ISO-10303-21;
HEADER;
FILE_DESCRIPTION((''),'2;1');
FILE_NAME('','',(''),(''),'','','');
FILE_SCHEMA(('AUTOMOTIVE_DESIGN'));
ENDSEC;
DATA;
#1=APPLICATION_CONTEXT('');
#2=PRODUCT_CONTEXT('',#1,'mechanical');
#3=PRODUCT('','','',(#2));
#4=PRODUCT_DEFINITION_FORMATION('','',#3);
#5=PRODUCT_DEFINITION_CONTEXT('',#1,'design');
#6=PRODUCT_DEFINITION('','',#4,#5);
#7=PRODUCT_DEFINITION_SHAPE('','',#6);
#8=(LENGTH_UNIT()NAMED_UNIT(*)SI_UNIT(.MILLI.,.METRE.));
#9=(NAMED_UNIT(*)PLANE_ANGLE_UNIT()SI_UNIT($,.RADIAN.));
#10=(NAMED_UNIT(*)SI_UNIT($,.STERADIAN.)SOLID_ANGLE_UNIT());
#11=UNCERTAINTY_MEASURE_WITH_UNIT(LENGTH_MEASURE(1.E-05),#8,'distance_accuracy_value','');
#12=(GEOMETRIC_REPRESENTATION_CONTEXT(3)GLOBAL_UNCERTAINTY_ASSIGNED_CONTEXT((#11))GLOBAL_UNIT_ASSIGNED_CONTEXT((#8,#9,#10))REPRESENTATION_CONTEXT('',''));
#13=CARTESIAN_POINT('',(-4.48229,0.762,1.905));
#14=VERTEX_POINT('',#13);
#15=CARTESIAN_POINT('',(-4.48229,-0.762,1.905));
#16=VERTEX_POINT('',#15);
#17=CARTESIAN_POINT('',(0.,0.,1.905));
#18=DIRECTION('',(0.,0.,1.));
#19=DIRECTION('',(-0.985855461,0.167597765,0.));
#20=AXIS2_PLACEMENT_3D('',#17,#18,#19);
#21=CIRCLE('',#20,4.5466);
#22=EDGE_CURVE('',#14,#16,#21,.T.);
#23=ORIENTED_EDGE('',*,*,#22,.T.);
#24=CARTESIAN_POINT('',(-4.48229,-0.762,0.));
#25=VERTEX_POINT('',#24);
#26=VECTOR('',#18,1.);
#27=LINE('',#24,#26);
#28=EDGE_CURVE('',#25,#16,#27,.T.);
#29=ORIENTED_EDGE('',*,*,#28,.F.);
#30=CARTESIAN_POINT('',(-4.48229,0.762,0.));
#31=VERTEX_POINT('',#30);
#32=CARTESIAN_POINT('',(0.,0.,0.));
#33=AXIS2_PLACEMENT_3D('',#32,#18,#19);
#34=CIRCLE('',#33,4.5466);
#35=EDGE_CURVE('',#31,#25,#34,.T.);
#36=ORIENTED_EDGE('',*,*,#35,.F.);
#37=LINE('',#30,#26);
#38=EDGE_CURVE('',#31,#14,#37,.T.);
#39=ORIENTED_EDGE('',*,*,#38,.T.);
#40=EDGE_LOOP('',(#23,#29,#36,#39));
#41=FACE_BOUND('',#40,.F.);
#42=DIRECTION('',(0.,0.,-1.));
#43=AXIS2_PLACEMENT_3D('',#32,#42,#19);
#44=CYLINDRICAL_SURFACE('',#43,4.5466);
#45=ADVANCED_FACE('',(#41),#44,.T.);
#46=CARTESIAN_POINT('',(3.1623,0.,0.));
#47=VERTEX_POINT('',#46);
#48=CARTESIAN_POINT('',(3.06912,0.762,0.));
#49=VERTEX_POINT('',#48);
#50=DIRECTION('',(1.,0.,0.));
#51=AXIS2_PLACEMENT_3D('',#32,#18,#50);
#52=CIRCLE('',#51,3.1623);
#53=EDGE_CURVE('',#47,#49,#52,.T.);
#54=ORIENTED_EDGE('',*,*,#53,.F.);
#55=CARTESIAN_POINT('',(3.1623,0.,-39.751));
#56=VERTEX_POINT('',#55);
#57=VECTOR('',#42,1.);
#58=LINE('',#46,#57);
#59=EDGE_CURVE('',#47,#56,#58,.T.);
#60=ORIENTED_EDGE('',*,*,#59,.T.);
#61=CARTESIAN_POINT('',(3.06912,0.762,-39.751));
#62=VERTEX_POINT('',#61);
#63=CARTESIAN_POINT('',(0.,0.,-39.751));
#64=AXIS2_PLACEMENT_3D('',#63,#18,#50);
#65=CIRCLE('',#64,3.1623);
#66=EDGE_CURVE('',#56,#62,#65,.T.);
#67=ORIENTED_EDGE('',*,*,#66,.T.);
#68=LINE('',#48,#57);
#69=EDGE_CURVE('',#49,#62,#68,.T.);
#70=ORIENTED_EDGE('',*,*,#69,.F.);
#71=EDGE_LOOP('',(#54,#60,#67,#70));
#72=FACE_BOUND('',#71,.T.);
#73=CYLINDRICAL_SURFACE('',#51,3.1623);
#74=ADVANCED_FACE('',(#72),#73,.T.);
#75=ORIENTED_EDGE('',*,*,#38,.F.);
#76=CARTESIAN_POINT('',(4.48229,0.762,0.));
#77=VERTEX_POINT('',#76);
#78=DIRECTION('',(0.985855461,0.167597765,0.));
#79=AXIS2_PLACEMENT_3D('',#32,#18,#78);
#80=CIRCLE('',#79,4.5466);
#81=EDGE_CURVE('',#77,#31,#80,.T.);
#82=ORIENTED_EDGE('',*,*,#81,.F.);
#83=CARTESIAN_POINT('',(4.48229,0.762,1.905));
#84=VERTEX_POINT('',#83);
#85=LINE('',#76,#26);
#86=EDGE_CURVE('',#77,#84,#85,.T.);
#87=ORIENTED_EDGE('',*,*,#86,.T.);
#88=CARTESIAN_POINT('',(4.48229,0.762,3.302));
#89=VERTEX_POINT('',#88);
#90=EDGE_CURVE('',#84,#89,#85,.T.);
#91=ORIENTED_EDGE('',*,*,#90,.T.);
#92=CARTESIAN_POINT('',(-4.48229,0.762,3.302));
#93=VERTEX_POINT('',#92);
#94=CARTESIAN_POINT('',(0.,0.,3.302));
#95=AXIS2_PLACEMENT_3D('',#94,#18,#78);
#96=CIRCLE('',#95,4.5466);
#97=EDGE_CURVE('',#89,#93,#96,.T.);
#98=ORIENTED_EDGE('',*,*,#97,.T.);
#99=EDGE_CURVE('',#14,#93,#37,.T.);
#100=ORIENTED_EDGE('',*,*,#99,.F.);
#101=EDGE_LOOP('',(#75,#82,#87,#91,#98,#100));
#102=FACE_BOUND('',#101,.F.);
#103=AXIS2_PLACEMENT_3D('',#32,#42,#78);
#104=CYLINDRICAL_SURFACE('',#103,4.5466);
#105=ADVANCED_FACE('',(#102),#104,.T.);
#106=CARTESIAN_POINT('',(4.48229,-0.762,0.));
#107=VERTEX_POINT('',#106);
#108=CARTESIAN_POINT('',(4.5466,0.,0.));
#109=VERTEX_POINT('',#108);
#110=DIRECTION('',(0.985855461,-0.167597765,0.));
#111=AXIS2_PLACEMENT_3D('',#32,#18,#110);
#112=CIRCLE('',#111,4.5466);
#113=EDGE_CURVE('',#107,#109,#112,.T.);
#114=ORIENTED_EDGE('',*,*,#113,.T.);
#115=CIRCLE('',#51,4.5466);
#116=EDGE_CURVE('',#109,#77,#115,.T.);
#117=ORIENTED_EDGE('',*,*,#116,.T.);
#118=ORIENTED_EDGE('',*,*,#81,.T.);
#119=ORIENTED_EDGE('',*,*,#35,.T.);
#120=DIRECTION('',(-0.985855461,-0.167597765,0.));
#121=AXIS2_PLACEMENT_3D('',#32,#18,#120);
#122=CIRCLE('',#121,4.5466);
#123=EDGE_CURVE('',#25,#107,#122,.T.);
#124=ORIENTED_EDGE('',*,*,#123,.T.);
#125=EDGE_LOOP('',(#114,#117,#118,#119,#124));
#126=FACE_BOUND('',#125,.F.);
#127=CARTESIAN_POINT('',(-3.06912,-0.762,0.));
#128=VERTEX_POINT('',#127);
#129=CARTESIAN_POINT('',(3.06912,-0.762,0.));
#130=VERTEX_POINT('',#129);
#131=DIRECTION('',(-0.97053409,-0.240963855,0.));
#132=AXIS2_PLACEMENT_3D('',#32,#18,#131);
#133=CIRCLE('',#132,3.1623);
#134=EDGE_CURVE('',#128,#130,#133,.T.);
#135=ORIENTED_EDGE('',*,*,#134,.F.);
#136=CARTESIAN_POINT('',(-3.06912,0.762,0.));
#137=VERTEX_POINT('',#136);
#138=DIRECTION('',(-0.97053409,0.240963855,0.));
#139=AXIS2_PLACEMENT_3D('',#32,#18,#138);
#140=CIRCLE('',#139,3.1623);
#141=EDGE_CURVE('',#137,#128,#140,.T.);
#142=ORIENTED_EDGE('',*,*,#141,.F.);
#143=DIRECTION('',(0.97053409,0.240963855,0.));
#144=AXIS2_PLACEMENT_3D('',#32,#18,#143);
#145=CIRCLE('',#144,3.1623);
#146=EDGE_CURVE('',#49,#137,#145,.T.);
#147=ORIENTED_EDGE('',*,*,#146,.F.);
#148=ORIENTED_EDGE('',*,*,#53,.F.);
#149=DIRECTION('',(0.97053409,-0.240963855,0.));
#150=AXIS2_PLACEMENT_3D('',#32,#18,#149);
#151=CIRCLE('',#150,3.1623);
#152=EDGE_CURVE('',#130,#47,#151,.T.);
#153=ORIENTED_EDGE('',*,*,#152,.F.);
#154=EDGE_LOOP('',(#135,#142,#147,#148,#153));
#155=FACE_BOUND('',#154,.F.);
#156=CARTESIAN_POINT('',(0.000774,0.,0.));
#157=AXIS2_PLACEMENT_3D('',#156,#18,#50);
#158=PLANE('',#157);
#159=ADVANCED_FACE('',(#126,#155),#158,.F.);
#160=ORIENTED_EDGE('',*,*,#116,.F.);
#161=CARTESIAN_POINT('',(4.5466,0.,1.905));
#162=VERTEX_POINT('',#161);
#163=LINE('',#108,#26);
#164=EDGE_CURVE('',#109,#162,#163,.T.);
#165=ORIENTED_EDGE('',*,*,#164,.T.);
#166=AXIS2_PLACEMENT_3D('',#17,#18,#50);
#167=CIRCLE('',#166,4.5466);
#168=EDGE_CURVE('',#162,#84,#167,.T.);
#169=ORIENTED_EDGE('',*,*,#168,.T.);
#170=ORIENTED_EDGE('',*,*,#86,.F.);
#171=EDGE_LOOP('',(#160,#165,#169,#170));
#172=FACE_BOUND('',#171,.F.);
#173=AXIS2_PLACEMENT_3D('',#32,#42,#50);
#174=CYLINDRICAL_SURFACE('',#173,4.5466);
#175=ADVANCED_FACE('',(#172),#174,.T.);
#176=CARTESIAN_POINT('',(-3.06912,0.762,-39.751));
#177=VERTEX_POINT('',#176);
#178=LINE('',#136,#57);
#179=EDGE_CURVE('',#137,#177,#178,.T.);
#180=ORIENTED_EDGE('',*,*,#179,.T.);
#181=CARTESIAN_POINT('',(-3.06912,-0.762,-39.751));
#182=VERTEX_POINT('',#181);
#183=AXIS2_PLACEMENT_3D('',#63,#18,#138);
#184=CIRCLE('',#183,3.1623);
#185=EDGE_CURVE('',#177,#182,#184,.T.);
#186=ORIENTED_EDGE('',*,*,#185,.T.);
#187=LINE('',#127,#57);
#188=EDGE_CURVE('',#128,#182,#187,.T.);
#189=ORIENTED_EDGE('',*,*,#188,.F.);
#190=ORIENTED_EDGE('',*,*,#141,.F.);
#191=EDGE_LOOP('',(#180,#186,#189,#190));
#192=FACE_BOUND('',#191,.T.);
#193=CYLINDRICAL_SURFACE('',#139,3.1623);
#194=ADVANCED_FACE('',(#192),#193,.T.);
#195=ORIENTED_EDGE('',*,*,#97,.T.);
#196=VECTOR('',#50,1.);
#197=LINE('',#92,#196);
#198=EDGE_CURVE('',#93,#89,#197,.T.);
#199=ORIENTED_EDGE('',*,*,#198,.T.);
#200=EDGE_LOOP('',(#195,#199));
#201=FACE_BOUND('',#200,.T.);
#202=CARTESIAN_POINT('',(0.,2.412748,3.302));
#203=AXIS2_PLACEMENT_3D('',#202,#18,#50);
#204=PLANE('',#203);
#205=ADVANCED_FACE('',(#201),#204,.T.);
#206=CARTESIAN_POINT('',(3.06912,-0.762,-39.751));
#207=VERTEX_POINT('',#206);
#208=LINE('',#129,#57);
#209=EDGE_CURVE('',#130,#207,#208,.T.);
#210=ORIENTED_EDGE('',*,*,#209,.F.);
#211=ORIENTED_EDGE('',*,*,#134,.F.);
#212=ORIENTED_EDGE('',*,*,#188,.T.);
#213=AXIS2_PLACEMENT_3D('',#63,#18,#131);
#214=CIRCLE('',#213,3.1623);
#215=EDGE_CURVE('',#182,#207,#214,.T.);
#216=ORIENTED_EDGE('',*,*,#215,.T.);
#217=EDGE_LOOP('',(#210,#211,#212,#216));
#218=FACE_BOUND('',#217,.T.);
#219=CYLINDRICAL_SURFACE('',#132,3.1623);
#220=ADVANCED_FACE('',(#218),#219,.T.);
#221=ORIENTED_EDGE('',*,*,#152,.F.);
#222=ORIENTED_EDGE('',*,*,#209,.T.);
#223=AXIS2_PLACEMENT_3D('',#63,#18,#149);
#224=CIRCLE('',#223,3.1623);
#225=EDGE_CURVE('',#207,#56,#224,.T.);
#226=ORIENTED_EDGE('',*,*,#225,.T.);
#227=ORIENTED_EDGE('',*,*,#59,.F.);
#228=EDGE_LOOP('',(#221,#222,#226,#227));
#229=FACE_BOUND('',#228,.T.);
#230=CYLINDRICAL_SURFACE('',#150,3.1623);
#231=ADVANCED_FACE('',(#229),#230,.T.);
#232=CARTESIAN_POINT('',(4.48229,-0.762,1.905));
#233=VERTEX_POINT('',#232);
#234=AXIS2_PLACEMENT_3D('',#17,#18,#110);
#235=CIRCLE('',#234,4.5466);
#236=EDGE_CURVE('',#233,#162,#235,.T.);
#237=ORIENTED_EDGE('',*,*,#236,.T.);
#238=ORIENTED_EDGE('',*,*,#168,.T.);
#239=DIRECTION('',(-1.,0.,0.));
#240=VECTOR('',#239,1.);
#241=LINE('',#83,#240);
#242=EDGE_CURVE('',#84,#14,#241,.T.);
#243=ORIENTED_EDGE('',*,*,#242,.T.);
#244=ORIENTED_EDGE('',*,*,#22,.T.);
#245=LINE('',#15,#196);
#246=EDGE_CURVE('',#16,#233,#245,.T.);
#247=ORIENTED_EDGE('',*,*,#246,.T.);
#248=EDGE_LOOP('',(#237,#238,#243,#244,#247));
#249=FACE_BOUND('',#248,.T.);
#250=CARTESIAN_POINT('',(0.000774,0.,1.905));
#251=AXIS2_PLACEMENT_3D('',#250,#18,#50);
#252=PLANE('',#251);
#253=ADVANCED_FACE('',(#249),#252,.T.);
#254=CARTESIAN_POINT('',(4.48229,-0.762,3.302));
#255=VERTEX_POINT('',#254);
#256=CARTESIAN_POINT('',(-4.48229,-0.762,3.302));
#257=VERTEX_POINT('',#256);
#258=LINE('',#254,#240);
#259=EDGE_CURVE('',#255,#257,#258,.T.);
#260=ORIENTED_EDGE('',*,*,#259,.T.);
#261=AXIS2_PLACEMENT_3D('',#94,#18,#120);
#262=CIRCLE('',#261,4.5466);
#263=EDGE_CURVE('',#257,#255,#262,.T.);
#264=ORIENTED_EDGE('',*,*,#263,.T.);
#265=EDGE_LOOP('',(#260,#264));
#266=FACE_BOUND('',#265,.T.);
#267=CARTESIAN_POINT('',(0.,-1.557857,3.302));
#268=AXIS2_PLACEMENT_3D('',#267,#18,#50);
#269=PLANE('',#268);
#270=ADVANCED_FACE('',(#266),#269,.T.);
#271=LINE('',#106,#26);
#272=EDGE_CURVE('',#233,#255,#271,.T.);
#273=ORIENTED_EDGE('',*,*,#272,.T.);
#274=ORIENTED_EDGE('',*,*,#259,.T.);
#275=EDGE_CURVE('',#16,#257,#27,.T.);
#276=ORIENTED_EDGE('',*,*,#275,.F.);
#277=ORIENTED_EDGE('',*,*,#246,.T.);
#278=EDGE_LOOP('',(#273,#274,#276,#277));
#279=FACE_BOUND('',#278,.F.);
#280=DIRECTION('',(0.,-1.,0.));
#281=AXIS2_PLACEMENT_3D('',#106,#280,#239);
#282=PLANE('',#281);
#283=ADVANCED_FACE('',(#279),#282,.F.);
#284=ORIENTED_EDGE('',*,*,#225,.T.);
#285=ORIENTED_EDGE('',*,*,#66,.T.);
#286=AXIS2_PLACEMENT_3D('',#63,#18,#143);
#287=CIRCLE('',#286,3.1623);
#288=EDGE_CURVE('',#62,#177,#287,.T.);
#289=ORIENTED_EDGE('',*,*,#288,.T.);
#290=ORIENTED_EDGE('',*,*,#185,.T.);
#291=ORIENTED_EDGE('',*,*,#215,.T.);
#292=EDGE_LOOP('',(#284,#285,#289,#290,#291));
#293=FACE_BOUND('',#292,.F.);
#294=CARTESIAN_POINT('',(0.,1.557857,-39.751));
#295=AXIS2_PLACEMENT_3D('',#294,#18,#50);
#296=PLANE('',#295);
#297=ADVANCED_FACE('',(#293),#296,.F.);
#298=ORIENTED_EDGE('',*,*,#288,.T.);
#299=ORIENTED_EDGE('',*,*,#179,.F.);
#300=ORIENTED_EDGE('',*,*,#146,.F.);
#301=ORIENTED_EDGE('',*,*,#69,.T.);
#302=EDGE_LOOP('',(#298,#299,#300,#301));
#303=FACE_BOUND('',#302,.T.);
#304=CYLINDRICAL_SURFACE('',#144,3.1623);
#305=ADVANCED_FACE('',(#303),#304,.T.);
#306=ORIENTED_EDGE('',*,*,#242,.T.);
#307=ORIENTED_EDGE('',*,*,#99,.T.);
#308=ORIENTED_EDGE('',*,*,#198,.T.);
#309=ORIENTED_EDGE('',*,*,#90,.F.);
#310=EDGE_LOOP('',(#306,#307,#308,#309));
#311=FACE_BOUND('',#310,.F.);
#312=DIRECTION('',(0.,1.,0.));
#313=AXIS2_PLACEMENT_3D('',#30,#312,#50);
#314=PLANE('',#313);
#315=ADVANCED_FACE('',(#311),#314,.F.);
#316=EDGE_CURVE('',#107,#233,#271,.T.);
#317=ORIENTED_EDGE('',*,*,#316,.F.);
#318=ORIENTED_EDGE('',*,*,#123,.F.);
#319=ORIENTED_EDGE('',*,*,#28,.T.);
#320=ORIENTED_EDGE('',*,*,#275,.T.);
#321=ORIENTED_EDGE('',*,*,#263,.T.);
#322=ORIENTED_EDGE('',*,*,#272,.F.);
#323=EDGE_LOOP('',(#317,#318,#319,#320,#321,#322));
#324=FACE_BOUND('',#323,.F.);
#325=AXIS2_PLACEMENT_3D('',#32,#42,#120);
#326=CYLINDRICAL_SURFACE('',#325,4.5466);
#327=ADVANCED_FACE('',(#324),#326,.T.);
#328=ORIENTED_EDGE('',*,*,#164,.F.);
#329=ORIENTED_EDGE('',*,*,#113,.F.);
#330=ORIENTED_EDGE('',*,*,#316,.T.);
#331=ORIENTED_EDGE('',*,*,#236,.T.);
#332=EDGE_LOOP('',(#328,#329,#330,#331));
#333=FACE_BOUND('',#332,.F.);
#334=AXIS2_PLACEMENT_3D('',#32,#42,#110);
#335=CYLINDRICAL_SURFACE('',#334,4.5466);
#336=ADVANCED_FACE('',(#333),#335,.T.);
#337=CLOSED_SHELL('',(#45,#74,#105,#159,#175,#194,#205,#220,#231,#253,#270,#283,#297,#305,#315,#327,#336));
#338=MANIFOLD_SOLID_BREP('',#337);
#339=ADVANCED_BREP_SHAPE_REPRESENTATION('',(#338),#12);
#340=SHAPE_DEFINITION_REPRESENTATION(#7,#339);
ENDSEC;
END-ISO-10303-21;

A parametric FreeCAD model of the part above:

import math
import FreeCAD as App
import Part
import Sketcher
from FreeCAD import Vector
Q = App.Units.Quantity

doc = App.newDocument("Part")
params = doc.addObject("Spreadsheet::Sheet", "Params")
for row, (alias, value) in enumerate([
    ("sketch1_radius", "0.179 in"),
    ("pad1_length", "0.13 in"),
    ("sketch2_radius", "0.179 in"),
    ("pad2_length", "0.13 in"),
    ("sketch3_radius", "0.179 in"),
    ("pad3_length", "0.075 in"),
    ("pad4_length", "1.565 in"),
], start=1):
    params.set(f"A{row}", alias)
    params.set(f"B{row}", "=" + value)
    params.setAlias(f"B{row}", alias)

body = doc.addObject("PartDesign::Body", "Body")

# Sketch on XY plane
sketch1 = doc.addObject("Sketcher::SketchObject", "Sketch")
body.addObject(sketch1)
sketch1.AttachmentSupport = (doc.XY_Plane, [""])
sketch1.MapMode = "FlatFace"
sketch1.addGeometry([
    Part.ArcOfCircle(Part.Circle(Vector(0, 0, 0), Vector(0, 0, 1), 4.5), math.radians(10), math.radians(170)),
    Part.LineSegment(Vector(-4.5, 0.8, 0), Vector(4.5, 0.8, 0)),
], False)
sketch1.addConstraint([
    Sketcher.Constraint("Coincident", 0, 1, 1, 2),
    Sketcher.Constraint("Coincident", 1, 1, 0, 2),
    Sketcher.Constraint("Horizontal", 1),
    Sketcher.Constraint("Coincident", 0, 3, -1, 1),
    Sketcher.Constraint("Radius", 0, Q("0.179 in")),
    Sketcher.Constraint("DistanceY", -1, 1, 0, 1, Q("0.03 in")),
])
sketch1.setExpression("Constraints[4]", "Params.sketch1_radius")
pad1 = doc.addObject("PartDesign::Pad", "Pad")
body.addObject(pad1)
pad1.Profile = sketch1
pad1.setExpression("Length", "Params.pad1_length")
body2 = doc.addObject("PartDesign::Body", "Body001")

# Sketch on XY plane
sketch2 = doc.addObject("Sketcher::SketchObject", "Sketch001")
body2.addObject(sketch2)
sketch2.AttachmentSupport = (doc.getObject("XY_Plane001"), [""])
sketch2.MapMode = "FlatFace"
sketch2.addGeometry([
    Part.ArcOfCircle(Part.Circle(Vector(0, 0, 0), Vector(0, 0, 1), 4.5), math.radians(-170), math.radians(-10)),
    Part.LineSegment(Vector(4.5, -0.8, 0), Vector(-4.5, -0.8, 0)),
], False)
sketch2.addConstraint([
    Sketcher.Constraint("Coincident", 0, 1, 1, 2),
    Sketcher.Constraint("Coincident", 1, 1, 0, 2),
    Sketcher.Constraint("Horizontal", 1),
    Sketcher.Constraint("Coincident", 0, 3, -1, 1),
    Sketcher.Constraint("Radius", 0, Q("0.179 in")),
    Sketcher.Constraint("DistanceY", 0, 1, -1, 1, Q("0.03 in")),
])
sketch2.setExpression("Constraints[4]", "Params.sketch2_radius")
pad2 = doc.addObject("PartDesign::Pad", "Pad001")
body2.addObject(pad2)
pad2.Profile = sketch2
pad2.setExpression("Length", "Params.pad2_length")
body.AllowCompound = True
doc.recompute()

boolean = doc.addObject("PartDesign::Boolean", "Boolean")
body.addObject(boolean)
boolean.Type = "Fuse"
boolean.addObjects([body2])

# Sketch on XY plane
sketch3 = doc.addObject("Sketcher::SketchObject", "Sketch002")
body.addObject(sketch3)
sketch3.AttachmentSupport = (doc.XY_Plane, [""])
sketch3.MapMode = "FlatFace"
sketch3.addGeometry([
    Part.ArcOfCircle(Part.Circle(Vector(0, 0, 0), Vector(0, 0, 1), 4.5), math.radians(-9.65), math.radians(0)),  # 0
    Part.ArcOfCircle(Part.Circle(Vector(0, 0, 0), Vector(0, 0, 1), 4.5), math.radians(0), math.radians(9.65)),  # 1
    Part.LineSegment(Vector(4.5, 0.8, 0), Vector(-4.5, 0.8, 0)),  # 2
    Part.ArcOfCircle(Part.Circle(Vector(0, 0, 0), Vector(0, 0, 1), 4.5), math.radians(170.35), math.radians(189.65)),  # 3
    Part.LineSegment(Vector(-4.5, -0.8, 0), Vector(4.5, -0.8, 0)),  # 4
], False)
sketch3.addConstraint([
    Sketcher.Constraint("Tangent", 0, 2, 1, 1),
    Sketcher.Constraint("Coincident", 1, 2, 2, 1),
    Sketcher.Constraint("Coincident", 2, 2, 3, 1),
    Sketcher.Constraint("Coincident", 3, 2, 4, 1),
    Sketcher.Constraint("Coincident", 4, 2, 0, 1),
    Sketcher.Constraint("Horizontal", 2),
    Sketcher.Constraint("Horizontal", 4),
    Sketcher.Constraint("Coincident", 0, 3, -1, 1),
    Sketcher.Constraint("Coincident", 3, 3, -1, 1),
    Sketcher.Constraint("Equal", 0, 1),
    Sketcher.Constraint("Equal", 1, 3),
    Sketcher.Constraint("PointOnObject", 0, 2, -1),
    Sketcher.Constraint("Vertical", 2, 2, 3, 2),
    Sketcher.Constraint("Radius", 0, Q("0.179 in")),
    Sketcher.Constraint("DistanceY", -1, 1, 1, 2, Q("0.03 in")),
])
sketch3.setExpression("Constraints[13]", "Params.sketch3_radius")
pad3 = doc.addObject("PartDesign::Pad", "Pad002")
body.addObject(pad3)
pad3.Profile = sketch3
pad3.setExpression("Length", "Params.pad3_length")

# Sketch on XY plane
sketch4 = doc.addObject("Sketcher::SketchObject", "Sketch003")
body.addObject(sketch4)
sketch4.AttachmentSupport = (doc.XY_Plane, [""])
sketch4.MapMode = "FlatFace"
sketch4.addGeometry([
    Part.ArcOfCircle(Part.Circle(Vector(0, 0, 0), Vector(0, 0, 1), 3.2), math.radians(14), math.radians(166)),  # 0
    Part.ArcOfCircle(Part.Circle(Vector(0, 0, 0), Vector(0, 0, 1), 3.2), math.radians(166), math.radians(194)),  # 1
    Part.ArcOfCircle(Part.Circle(Vector(0, 0, 0), Vector(0, 0, 1), 3.2), math.radians(-166), math.radians(-14)),  # 2
    Part.ArcOfCircle(Part.Circle(Vector(0, 0, 0), Vector(0, 0, 1), 3.2), math.radians(-13.94), math.radians(0)),  # 3
    Part.ArcOfCircle(Part.Circle(Vector(0, 0, 0), Vector(0, 0, 1), 3.2), math.radians(0), math.radians(13.94)),  # 4
], False)
sketch4.addConstraint([
    Sketcher.Constraint("Tangent", 0, 2, 1, 1),
    Sketcher.Constraint("Tangent", 1, 2, 2, 1),
    Sketcher.Constraint("Tangent", 2, 2, 3, 1),
    Sketcher.Constraint("Tangent", 3, 2, 4, 1),
    Sketcher.Constraint("Tangent", 4, 2, 0, 1),
    Sketcher.Constraint("Coincident", 0, 3, -1, 1),
    Sketcher.Constraint("Coincident", 2, 3, -1, 1),
    Sketcher.Constraint("PointOnObject", 3, 2, -1),
    Sketcher.Constraint("Horizontal", 1, 2, 2, 2),
    Sketcher.Constraint("Horizontal", 0, 2, 4, 2),
    Sketcher.Constraint("Vertical", 0, 2, 1, 2),
    Sketcher.Constraint("Radius", 0, Q("0.1245 in")),
    Sketcher.Constraint("DistanceY", -1, 1, 0, 2, Q("0.03 in")),
])
pad4 = doc.addObject("PartDesign::Pad", "Pad003")
body.addObject(pad4)
pad4.Profile = sketch4
pad4.setExpression("Length", "Params.pad4_length")
pad4.Reversed = True

doc.recompute()
